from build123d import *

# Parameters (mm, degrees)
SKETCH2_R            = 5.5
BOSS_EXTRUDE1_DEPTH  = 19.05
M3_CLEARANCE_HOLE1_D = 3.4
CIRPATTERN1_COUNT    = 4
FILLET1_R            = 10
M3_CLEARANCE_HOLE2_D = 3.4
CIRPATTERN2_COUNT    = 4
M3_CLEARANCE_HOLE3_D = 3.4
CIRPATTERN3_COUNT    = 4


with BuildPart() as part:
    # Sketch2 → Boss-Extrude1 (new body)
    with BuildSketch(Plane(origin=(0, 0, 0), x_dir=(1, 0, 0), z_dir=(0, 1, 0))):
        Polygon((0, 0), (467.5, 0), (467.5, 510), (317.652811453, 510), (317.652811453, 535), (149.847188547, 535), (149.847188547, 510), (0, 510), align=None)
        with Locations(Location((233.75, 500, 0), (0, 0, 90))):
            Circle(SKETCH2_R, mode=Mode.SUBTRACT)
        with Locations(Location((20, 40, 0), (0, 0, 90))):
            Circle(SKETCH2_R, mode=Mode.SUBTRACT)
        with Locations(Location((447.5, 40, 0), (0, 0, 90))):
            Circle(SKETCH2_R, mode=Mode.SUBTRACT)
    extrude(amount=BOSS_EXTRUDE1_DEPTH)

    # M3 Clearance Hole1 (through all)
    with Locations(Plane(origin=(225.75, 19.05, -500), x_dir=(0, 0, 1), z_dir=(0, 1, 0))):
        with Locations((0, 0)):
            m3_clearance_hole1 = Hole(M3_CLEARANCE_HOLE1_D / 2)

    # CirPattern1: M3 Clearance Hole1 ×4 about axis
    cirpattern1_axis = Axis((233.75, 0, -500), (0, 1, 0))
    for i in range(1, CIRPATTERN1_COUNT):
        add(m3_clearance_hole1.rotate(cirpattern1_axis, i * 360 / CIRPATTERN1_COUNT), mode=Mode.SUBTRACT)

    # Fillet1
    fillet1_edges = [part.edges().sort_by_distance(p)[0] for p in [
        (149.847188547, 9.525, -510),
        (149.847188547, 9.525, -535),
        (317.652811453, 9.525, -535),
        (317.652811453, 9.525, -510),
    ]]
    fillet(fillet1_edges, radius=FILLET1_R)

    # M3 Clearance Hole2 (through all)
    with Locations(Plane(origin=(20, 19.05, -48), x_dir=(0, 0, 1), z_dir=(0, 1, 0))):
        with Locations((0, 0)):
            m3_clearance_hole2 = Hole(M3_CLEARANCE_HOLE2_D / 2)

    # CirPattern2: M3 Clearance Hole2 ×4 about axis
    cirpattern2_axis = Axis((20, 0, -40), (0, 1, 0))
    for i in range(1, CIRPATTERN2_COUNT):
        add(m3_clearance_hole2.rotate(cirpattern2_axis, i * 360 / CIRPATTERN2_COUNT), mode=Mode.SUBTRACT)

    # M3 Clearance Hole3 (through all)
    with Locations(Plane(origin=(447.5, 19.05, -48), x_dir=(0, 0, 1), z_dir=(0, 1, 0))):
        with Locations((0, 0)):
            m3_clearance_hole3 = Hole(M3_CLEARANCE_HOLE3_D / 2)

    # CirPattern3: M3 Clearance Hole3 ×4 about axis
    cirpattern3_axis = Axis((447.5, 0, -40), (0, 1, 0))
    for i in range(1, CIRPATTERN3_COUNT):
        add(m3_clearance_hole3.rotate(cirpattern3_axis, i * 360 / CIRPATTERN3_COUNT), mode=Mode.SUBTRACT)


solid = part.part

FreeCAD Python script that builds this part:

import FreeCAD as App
import Part
import Sketcher


def edges_at(feature, points):
    """Names of the edges that pass closest to the given points."""
    edges = feature.Shape.Edges
    near = lambda p: min(range(len(edges)), key=lambda i: edges[i].distToShape(Part.Vertex(*p))[0])
    return sorted({f"Edge{near(p) + 1}" for p in points})


def add_polygon(sketch, points):
    """Adds a closed chain of lines whose ends are joined by coincident constraints."""
    first, n = sketch.GeometryCount, len(points)
    for a, b in zip(points, points[1:] + points[:1]):
        sketch.addGeometry(Part.LineSegment(App.Vector(*a, 0), App.Vector(*b, 0)), False)
    for i in range(n):
        sketch.addConstraint(Sketcher.Constraint("Coincident", first + i, 2, first + (i + 1) % n, 1))

doc = App.newDocument("Part")
body = doc.addObject("PartDesign::Body", "Body")

# Sketch on XZ plane
sketch1 = body.newObject("Sketcher::SketchObject", "Sketch")
sketch1.AttachmentSupport = (doc.getObject("XZ_Plane"), [""])
sketch1.MapMode = "FlatFace"
add_polygon(sketch1, [(0, 0), (468, 0), (468, -510), (318, -510), (318, -535), (150, -535), (150, -510), (0, -510)])  # lines 0-7
sketch1.addGeometry(Part.Circle(App.Vector(20, -40, 0), App.Vector(0, 0, 1), 6), False)  # 8
sketch1.addGeometry(Part.Circle(App.Vector(448, -40, 0), App.Vector(0, 0, 1), 6), False)  # 9
sketch1.addGeometry(Part.Circle(App.Vector(234, -500, 0), App.Vector(0, 0, 1), 6), False)  # 10
sketch1.addConstraint([
    Sketcher.Constraint("Horizontal", 0),
    Sketcher.Constraint("Vertical", 1),
    Sketcher.Constraint("Horizontal", 2),
    Sketcher.Constraint("Vertical", 3),
    Sketcher.Constraint("Horizontal", 4),
    Sketcher.Constraint("Vertical", 5),
    Sketcher.Constraint("Horizontal", 6),
    Sketcher.Constraint("Vertical", 7),
    Sketcher.Constraint("Coincident", 7, 2, -1, 1),
    Sketcher.Constraint("Equal", 8, 9),
    Sketcher.Constraint("Equal", 9, 10),
    Sketcher.Constraint("Horizontal", 8, 3, 9, 3),
    Sketcher.Constraint("Horizontal", 2, 2, 5, 2),
    Sketcher.Constraint("Equal", 2, 6),
    Sketcher.Constraint("Diameter", 8, 11.0),
    Sketcher.Constraint("DistanceY", 1, 2, 1, 1, 510.0),
    Sketcher.Constraint("DistanceY", 3, 2, 3, 1, 25.0),
    Sketcher.Constraint("DistanceX", 0, 1, 0, 2, 467.5),
    Sketcher.Constraint("DistanceX", -1, 1, 8, 3, 20.0),
    Sketcher.Constraint("DistanceY", 8, 3, -1, 1, 40.0),
    Sketcher.Constraint("DistanceY", 10, 3, -1, 1, 500.0),
    Sketcher.Constraint("DistanceX", 9, 3, 0, 2, 20.0),
    Sketcher.Constraint("DistanceX", -1, 1, 10, 3, 233.75),
    Sketcher.Constraint("DistanceX", 2, 2, 2, 1, 149.847189),
])
pad1 = body.newObject("PartDesign::Pad", "Pad")
pad1.Profile = sketch1
pad1.Length = 19.05
pad1.Reversed = True

# Sketch on XZ plane
sketch2 = body.newObject("Sketcher::SketchObject", "Sketch001")
sketch2.AttachmentSupport = (doc.getObject("XZ_Plane"), [""])
sketch2.MapMode = "FlatFace"
sketch2.AttachmentOffset = App.Placement(App.Vector(0, 0, -19.05), App.Rotation())
sketch2.addGeometry(Part.Circle(App.Vector(225.8, -500, 0), App.Vector(0, 0, 1), 1.7), False)
sketch2.addConstraint([
    Sketcher.Constraint("Diameter", 0, 3.4),
    Sketcher.Constraint("DistanceY", 0, 3, -1, 1, 500.0),
    Sketcher.Constraint("DistanceX", -1, 1, 0, 3, 225.75),
])
doc.recompute()
hole = body.newObject("PartDesign::Hole", "Hole")
hole.Profile = sketch2
hole.ThreadType = "None"
hole.Diameter = 3.4
hole.DepthType = "ThroughAll"
hole.Reversed = True
doc.recompute()

datumline = body.newObject("PartDesign::Line", "DatumLine")
datumline.Placement = App.Placement(App.Vector(233.75, 0, -500), App.Rotation(App.Vector(0, 0, 1), App.Vector(0, 1, 0)))
polarpattern = body.newObject("PartDesign::PolarPattern", "PolarPattern")
polarpattern.Originals = [hole]
polarpattern.Axis = (datumline, [""])
polarpattern.Angle = 360
polarpattern.Occurrences = 4
body.Tip = polarpattern
doc.recompute()

fillet = body.newObject("PartDesign::Fillet", "Fillet")
fillet.Base = (polarpattern, edges_at(polarpattern, [
    (149.847, 9.525, -510),
    (149.847, 9.525, -535),
    (317.653, 9.525, -535),
    (317.653, 9.525, -510),
]))
fillet.Radius = 10

# Sketch on XZ plane
sketch3 = body.newObject("Sketcher::SketchObject", "Sketch002")
sketch3.AttachmentSupport = (doc.getObject("XZ_Plane"), [""])
sketch3.MapMode = "FlatFace"
sketch3.AttachmentOffset = App.Placement(App.Vector(0, 0, -19.05), App.Rotation())
sketch3.addGeometry(Part.Circle(App.Vector(20, -48, 0), App.Vector(0, 0, 1), 1.7), False)
sketch3.addConstraint([
    Sketcher.Constraint("Diameter", 0, 3.4),
    Sketcher.Constraint("DistanceX", -1, 1, 0, 3, 20.0),
    Sketcher.Constraint("DistanceY", 0, 3, -1, 1, 48.0),
])
doc.recompute()
hole2 = body.newObject("PartDesign::Hole", "Hole001")
hole2.Profile = sketch3
hole2.ThreadType = "None"
hole2.Diameter = 3.4
hole2.DepthType = "ThroughAll"
hole2.Reversed = True
doc.recompute()

datumline2 = body.newObject("PartDesign::Line", "DatumLine001")
datumline2.Placement = App.Placement(App.Vector(20, 0, -40), App.Rotation(App.Vector(0, 0, 1), App.Vector(0, 1, 0)))
polarpattern2 = body.newObject("PartDesign::PolarPattern", "PolarPattern001")
polarpattern2.Originals = [hole2]
polarpattern2.Axis = (datumline2, [""])
polarpattern2.Angle = 360
polarpattern2.Occurrences = 4
body.Tip = polarpattern2

# Sketch on XZ plane
sketch4 = body.newObject("Sketcher::SketchObject", "Sketch003")
sketch4.AttachmentSupport = (doc.getObject("XZ_Plane"), [""])
sketch4.MapMode = "FlatFace"
sketch4.AttachmentOffset = App.Placement(App.Vector(0, 0, -19.05), App.Rotation())
sketch4.addGeometry(Part.Circle(App.Vector(447.5, -48, 0), App.Vector(0, 0, 1), 1.7), False)
sketch4.addConstraint([
    Sketcher.Constraint("Diameter", 0, 3.4),
    Sketcher.Constraint("DistanceY", 0, 3, -1, 1, 48.0),
    Sketcher.Constraint("DistanceX", -1, 1, 0, 3, 447.5),
])
doc.recompute()
hole3 = body.newObject("PartDesign::Hole", "Hole002")
hole3.Profile = sketch4
hole3.ThreadType = "None"
hole3.Diameter = 3.4
hole3.DepthType = "ThroughAll"
hole3.Reversed = True
doc.recompute()

datumline3 = body.newObject("PartDesign::Line", "DatumLine002")
datumline3.Placement = App.Placement(App.Vector(447.5, 0, -40), App.Rotation(App.Vector(0, 0, 1), App.Vector(0, 1, 0)))
polarpattern3 = body.newObject("PartDesign::PolarPattern", "PolarPattern002")
polarpattern3.Originals = [hole3]
polarpattern3.Axis = (datumline3, [""])
polarpattern3.Angle = 360
polarpattern3.Occurrences = 4
body.Tip = polarpattern3

doc.recompute()
